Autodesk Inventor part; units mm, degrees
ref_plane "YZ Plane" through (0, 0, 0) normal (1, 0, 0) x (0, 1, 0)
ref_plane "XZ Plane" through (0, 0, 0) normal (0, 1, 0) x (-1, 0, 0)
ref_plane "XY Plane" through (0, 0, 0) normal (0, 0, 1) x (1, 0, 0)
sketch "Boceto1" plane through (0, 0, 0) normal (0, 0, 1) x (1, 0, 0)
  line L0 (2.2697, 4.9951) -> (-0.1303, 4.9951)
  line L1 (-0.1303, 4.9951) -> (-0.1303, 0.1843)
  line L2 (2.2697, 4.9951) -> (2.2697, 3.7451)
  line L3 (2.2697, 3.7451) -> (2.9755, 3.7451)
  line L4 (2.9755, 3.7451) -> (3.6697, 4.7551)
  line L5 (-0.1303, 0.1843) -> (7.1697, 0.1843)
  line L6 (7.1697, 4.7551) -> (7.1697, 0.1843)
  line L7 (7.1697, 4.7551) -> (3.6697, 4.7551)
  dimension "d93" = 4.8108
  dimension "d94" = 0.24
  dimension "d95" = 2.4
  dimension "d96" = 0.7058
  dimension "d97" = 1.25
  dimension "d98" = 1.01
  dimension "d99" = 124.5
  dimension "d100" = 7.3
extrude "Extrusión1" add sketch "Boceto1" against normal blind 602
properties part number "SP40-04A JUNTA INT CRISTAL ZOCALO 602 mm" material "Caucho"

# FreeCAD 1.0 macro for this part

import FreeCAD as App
import Part
import Sketcher

V = App.Vector
Q = App.Units.Quantity


def add_polygon(sketch, points):
    """Adds a closed chain of lines whose ends are joined by coincident constraints."""
    first, n = sketch.GeometryCount, len(points)
    for a, b in zip(points, points[1:] + points[:1]):
        sketch.addGeometry(Part.LineSegment(App.Vector(*a, 0), App.Vector(*b, 0)), False)
    for i in range(n):
        sketch.addConstraint(Sketcher.Constraint("Coincident", first + i, 2, first + (i + 1) % n, 1))

doc = App.newDocument("Part")
body = doc.addObject("PartDesign::Body", "Body")

sketch1 = body.newObject("Sketcher::SketchObject", "Sketch")
sketch1.AttachmentSupport = (doc.getObject("XY_Plane"), [""])
sketch1.MapMode = "FlatFace"
add_polygon(sketch1, [(2.3, 3.7), (2.3, 5), (-0.1, 5), (-0.1, 0.2), (7.2, 0.2), (7.2, 4.8), (3.7, 4.8), (3, 3.7)])
sketch1.addConstraint(Sketcher.Constraint("Vertical", 0))
sketch1.addConstraint(Sketcher.Constraint("Horizontal", 1))
sketch1.addConstraint(Sketcher.Constraint("Vertical", 2))
sketch1.addConstraint(Sketcher.Constraint("Horizontal", 3))
sketch1.addConstraint(Sketcher.Constraint("Vertical", 4))
sketch1.addConstraint(Sketcher.Constraint("Horizontal", 5))
sketch1.addConstraint(Sketcher.Constraint("Horizontal", 7))
sketch1.addConstraint(Sketcher.Constraint("DistanceX", 1, 2, 1, 1, Q("2.4 mm")))
sketch1.addConstraint(Sketcher.Constraint("DistanceX", 3, 1, 3, 2, Q("7.3 mm")))
sketch1.addConstraint(Sketcher.Constraint("DistanceY", 0, 1, 0, 2, Q("1.25 mm")))
sketch1.addConstraint(Sketcher.Constraint("DistanceY", 4, 2, 0, 2, Q("0.24 mm")))
sketch1.addConstraint(Sketcher.Constraint("DistanceX", 5, 2, 5, 1, Q("3.5 mm")))
sketch1.addConstraint(Sketcher.Constraint("DistanceX", 7, 2, 7, 1, Q("0.7058 mm")))
sketch1.addConstraint(Sketcher.Constraint("DistanceY", 2, 2, 2, 1, Q("4.8108 mm")))
sketch1.addConstraint(Sketcher.Constraint("DistanceY", -1, 1, 0, 2, Q("4.995 mm")))
sketch1.addConstraint(Sketcher.Constraint("DistanceX", -1, 1, 0, 2, Q("2.2697 mm")))
pad1 = body.newObject("PartDesign::Pad", "Pad")
pad1.Profile = sketch1
pad1.Length = 602
pad1.Reversed = True

doc.recompute()
